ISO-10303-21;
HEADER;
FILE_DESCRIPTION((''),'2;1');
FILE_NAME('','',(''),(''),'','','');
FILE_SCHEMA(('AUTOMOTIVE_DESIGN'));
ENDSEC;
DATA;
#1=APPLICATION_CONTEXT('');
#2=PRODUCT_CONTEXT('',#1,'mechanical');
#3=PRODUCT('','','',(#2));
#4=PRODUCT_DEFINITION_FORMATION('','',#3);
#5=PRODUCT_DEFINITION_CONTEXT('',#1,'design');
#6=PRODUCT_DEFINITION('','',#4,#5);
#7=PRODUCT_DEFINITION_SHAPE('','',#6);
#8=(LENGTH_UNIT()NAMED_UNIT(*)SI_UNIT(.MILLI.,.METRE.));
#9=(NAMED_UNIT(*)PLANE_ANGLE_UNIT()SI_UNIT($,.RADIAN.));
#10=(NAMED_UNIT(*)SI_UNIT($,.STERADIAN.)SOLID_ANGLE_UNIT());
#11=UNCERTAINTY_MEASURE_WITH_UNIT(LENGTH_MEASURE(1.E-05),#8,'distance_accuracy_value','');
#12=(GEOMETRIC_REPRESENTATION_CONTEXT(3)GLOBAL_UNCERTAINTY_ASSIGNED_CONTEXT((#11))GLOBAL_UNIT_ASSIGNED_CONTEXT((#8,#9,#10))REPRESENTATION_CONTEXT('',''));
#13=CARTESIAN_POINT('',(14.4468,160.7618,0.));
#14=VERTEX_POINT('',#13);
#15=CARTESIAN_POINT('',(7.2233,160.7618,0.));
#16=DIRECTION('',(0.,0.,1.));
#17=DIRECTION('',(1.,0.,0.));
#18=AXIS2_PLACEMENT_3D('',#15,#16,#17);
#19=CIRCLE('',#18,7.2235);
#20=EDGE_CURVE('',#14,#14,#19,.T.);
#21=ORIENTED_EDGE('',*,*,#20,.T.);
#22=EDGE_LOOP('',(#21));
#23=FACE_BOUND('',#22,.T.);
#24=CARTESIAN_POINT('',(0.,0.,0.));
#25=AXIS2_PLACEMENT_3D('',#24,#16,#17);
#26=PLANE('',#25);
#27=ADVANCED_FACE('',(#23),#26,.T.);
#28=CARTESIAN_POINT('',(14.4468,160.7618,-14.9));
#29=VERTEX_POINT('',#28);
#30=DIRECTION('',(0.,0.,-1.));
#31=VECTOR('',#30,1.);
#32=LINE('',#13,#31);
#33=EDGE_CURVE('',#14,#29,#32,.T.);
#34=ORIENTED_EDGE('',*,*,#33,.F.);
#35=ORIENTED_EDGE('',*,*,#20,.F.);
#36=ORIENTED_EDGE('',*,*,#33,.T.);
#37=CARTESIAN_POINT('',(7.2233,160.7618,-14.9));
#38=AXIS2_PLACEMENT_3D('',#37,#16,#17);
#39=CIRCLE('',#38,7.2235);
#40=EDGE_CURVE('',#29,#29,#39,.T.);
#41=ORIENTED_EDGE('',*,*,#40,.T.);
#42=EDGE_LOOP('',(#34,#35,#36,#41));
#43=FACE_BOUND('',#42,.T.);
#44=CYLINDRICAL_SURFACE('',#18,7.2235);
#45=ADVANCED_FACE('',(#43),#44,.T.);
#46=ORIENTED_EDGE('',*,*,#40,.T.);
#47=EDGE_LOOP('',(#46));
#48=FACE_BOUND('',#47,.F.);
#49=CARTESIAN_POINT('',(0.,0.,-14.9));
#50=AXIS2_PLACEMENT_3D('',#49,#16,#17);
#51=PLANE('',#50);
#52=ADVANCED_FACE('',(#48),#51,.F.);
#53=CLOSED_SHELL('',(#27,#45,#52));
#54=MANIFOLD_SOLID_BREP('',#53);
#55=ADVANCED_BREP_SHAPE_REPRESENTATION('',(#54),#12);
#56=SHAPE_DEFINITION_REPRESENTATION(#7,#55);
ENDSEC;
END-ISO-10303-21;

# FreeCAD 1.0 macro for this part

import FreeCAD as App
import Part
import Sketcher

V = App.Vector
Q = App.Units.Quantity

doc = App.newDocument("Part")
params = doc.addObject("Spreadsheet::Sheet", "Params")
for row, (alias, value) in enumerate([
    ("pad1_length", "14.9 mm"),
], start=1):
    params.set(f"A{row}", alias)
    params.set(f"B{row}", "=" + value)
    params.setAlias(f"B{row}", alias)

body = doc.addObject("PartDesign::Body", "Body")

# Sketch on XY plane
sketch1 = doc.addObject("Sketcher::SketchObject", "Sketch")
body.addObject(sketch1)
sketch1.AttachmentSupport = (doc.XY_Plane, [""])
sketch1.MapMode = "FlatFace"
sketch1.addGeometry(Part.Circle(V(7.2233, 160.7618, 0), V(0, 0, 1), 7.2235), False)
sketch1.addConstraint([
    Sketcher.Constraint("Diameter", 0, Q("14.447 mm")),
    Sketcher.Constraint("DistanceX", -1, 1, 0, 3, Q("7.2233 mm")),
    Sketcher.Constraint("DistanceY", -1, 1, 0, 3, Q("160.7618 mm")),
])
pad1 = doc.addObject("PartDesign::Pad", "Pad")
body.addObject(pad1)
pad1.Profile = sketch1
pad1.setExpression("Length", "Params.pad1_length")
pad1.Reversed = True

doc.recompute()
